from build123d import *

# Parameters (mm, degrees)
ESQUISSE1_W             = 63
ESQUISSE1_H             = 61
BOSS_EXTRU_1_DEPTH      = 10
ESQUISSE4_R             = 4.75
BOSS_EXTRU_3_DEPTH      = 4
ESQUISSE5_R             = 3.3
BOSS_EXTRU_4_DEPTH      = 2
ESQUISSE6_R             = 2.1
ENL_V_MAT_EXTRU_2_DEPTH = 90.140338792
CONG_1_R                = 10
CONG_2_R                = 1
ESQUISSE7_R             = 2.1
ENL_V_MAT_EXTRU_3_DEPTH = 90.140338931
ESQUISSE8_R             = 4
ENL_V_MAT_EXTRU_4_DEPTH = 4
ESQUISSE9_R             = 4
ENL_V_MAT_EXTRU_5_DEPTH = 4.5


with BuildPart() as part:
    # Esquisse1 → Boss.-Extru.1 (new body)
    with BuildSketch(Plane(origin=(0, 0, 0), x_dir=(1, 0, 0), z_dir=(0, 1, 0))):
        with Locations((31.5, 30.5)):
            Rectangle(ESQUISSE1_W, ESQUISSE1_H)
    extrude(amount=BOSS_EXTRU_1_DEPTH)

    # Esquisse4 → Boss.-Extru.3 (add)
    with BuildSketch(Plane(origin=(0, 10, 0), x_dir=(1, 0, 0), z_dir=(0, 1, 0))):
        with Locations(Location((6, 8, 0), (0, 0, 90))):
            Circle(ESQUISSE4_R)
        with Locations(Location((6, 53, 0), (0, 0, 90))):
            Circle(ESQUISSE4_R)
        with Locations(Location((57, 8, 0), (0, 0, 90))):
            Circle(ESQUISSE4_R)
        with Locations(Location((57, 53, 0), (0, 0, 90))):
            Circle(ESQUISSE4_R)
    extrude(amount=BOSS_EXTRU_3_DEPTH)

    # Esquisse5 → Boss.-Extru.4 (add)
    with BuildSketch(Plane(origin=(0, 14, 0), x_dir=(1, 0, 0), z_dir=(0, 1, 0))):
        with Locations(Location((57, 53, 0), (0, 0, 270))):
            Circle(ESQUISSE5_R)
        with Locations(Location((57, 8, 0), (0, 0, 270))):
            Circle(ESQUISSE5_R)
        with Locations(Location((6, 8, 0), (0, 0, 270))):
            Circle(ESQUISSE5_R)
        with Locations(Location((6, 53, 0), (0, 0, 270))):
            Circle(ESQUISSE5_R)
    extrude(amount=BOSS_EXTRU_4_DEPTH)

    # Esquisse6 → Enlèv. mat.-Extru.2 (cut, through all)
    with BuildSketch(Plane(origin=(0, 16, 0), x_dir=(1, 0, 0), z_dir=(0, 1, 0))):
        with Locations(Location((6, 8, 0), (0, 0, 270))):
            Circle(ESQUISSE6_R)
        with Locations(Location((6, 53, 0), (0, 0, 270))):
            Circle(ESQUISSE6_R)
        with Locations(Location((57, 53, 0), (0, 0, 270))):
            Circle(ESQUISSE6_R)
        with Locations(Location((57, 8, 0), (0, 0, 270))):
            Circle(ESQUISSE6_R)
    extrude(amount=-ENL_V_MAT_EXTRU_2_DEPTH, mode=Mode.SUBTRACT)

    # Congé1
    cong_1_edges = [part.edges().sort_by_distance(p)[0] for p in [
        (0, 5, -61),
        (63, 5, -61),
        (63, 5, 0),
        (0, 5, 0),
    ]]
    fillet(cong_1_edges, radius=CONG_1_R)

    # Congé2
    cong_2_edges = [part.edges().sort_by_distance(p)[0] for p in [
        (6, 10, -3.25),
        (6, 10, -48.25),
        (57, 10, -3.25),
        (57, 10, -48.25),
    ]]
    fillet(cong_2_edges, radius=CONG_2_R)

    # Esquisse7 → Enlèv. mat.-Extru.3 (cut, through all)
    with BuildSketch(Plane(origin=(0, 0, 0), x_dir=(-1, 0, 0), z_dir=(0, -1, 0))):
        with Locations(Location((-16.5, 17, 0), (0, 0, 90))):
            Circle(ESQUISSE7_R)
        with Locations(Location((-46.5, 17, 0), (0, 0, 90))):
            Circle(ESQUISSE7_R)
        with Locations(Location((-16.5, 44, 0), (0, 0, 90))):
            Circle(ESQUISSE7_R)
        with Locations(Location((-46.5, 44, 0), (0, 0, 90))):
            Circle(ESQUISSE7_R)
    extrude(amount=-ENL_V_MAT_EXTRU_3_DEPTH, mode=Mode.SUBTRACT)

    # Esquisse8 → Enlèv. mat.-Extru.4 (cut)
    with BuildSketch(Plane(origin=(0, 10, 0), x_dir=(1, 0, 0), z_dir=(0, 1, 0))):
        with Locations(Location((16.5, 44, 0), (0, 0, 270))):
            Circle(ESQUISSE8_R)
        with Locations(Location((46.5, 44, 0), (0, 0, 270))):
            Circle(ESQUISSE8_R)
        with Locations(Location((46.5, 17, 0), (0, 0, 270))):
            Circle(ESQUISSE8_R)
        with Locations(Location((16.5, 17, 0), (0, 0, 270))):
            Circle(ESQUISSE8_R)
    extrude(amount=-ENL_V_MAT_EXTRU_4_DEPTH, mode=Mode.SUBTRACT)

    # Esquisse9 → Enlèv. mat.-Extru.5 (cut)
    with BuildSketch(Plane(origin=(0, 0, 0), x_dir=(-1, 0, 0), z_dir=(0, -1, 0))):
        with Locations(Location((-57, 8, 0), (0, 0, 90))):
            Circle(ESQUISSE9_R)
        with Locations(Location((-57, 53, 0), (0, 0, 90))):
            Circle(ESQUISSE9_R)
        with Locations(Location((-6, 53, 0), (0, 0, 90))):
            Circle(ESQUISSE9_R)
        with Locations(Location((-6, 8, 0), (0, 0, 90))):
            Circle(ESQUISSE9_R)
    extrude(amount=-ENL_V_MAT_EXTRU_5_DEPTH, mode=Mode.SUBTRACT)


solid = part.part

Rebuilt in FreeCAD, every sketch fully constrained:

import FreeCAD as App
import Part
import Sketcher


def edges_at(feature, points):
    """Names of the edges that pass closest to the given points."""
    edges = feature.Shape.Edges
    near = lambda p: min(range(len(edges)), key=lambda i: edges[i].distToShape(Part.Vertex(*p))[0])
    return sorted({f"Edge{near(p) + 1}" for p in points})


def add_polygon(sketch, points):
    """Adds a closed chain of lines whose ends are joined by coincident constraints."""
    first, n = sketch.GeometryCount, len(points)
    for a, b in zip(points, points[1:] + points[:1]):
        sketch.addGeometry(Part.LineSegment(App.Vector(*a, 0), App.Vector(*b, 0)), False)
    for i in range(n):
        sketch.addConstraint(Sketcher.Constraint("Coincident", first + i, 2, first + (i + 1) % n, 1))

doc = App.newDocument("Part")
params = doc.addObject("Spreadsheet::Sheet", "Params")
for row, (alias, value) in enumerate([
    ("sketch1_width", "63 mm"),
    ("sketch1_height", "61 mm"),
    ("pad1_length", "10 mm"),
    ("sketch2_diameter", "9.5 mm"),
    ("pad2_length", "4 mm"),
    ("sketch3_diameter", "6.6 mm"),
    ("pad3_length", "2 mm"),
    ("sketch4_diameter", "4.2 mm"),
    ("fillet_radius", "10 mm"),
    ("fillet2_radius", "1 mm"),
    ("sketch5_diameter", "4.2 mm"),
    ("sketch6_diameter", "8 mm"),
    ("pocket3_length", "4 mm"),
    ("sketch7_diameter", "8 mm"),
    ("pocket4_length", "4.5 mm"),
], start=1):
    params.set(f"A{row}", alias)
    params.set(f"B{row}", "=" + value)
    params.setAlias(f"B{row}", alias)

body = doc.addObject("PartDesign::Body", "Body")

# Sketch on XZ plane
sketch1 = body.newObject("Sketcher::SketchObject", "Sketch")
sketch1.AttachmentSupport = (doc.getObject("XZ_Plane"), [""])
sketch1.MapMode = "FlatFace"
add_polygon(sketch1, [(0, -61), (0, 0), (63, 0), (63, -61)])  # lines 0-3
sketch1.addConstraint([
    Sketcher.Constraint("Vertical", 0),
    Sketcher.Constraint("Horizontal", 1),
    Sketcher.Constraint("Vertical", 2),
    Sketcher.Constraint("Horizontal", 3),
    Sketcher.Constraint("Coincident", 0, 2, -1, 1),
    Sketcher.Constraint("DistanceX", 1, 1, 1, 2, 63.0),
    Sketcher.Constraint("DistanceY", 0, 1, 0, 2, 61.0),
])
sketch1.setExpression("Constraints[9]", "Params.sketch1_width")
sketch1.setExpression("Constraints[10]", "Params.sketch1_height")
pad1 = body.newObject("PartDesign::Pad", "Pad")
pad1.Profile = sketch1
pad1.setExpression("Length", "Params.pad1_length")
pad1.Reversed = True

# Sketch on XZ plane
sketch2 = body.newObject("Sketcher::SketchObject", "Sketch001")
sketch2.AttachmentSupport = (doc.getObject("XZ_Plane"), [""])
sketch2.MapMode = "FlatFace"
sketch2.AttachmentOffset = App.Placement(App.Vector(0, 0, -10), App.Rotation())
sketch2.addGeometry([
    Part.Circle(App.Vector(6, -8, 0), App.Vector(0, 0, 1), 4.8),
    Part.Circle(App.Vector(6, -53, 0), App.Vector(0, 0, 1), 4.8),
    Part.Circle(App.Vector(57, -8, 0), App.Vector(0, 0, 1), 4.8),
    Part.Circle(App.Vector(57, -53, 0), App.Vector(0, 0, 1), 4.8),
], False)
sketch2.addConstraint([
    Sketcher.Constraint("Equal", 0, 1),
    Sketcher.Constraint("Equal", 1, 2),
    Sketcher.Constraint("Equal", 2, 3),
    Sketcher.Constraint("Horizontal", 0, 3, 2, 3),
    Sketcher.Constraint("Horizontal", 1, 3, 3, 3),
    Sketcher.Constraint("Vertical", 0, 3, 1, 3),
    Sketcher.Constraint("Vertical", 2, 3, 3, 3),
    Sketcher.Constraint("Diameter", 0, 9.5),
    Sketcher.Constraint("DistanceX", -1, 1, 0, 3, 6.0),
    Sketcher.Constraint("DistanceY", 0, 3, -1, 1, 8.0),
    Sketcher.Constraint("DistanceY", 1, 3, -1, 1, 53.0),
    Sketcher.Constraint("DistanceX", -1, 1, 2, 3, 57.0),
])
sketch2.setExpression("Constraints[7]", "Params.sketch2_diameter")
pad2 = body.newObject("PartDesign::Pad", "Pad001")
pad2.Profile = sketch2
pad2.setExpression("Length", "Params.pad2_length")
pad2.Reversed = True

# Sketch on XZ plane
sketch3 = body.newObject("Sketcher::SketchObject", "Sketch002")
sketch3.AttachmentSupport = (doc.getObject("XZ_Plane"), [""])
sketch3.MapMode = "FlatFace"
sketch3.AttachmentOffset = App.Placement(App.Vector(0, 0, -14), App.Rotation())
sketch3.addGeometry([
    Part.Circle(App.Vector(57, -53, 0), App.Vector(0, 0, 1), 3.3),
    Part.Circle(App.Vector(57, -8, 0), App.Vector(0, 0, 1), 3.3),
    Part.Circle(App.Vector(6, -8, 0), App.Vector(0, 0, 1), 3.3),
    Part.Circle(App.Vector(6, -53, 0), App.Vector(0, 0, 1), 3.3),
], False)
sketch3.addConstraint([
    Sketcher.Constraint("Equal", 0, 1),
    Sketcher.Constraint("Equal", 1, 2),
    Sketcher.Constraint("Equal", 2, 3),
    Sketcher.Constraint("Horizontal", 1, 3, 2, 3),
    Sketcher.Constraint("Horizontal", 0, 3, 3, 3),
    Sketcher.Constraint("Vertical", 0, 3, 1, 3),
    Sketcher.Constraint("Vertical", 2, 3, 3, 3),
    Sketcher.Constraint("Diameter", 0, 6.6),
    Sketcher.Constraint("DistanceX", -1, 1, 0, 3, 57.0),
    Sketcher.Constraint("DistanceY", 0, 3, -1, 1, 53.0),
    Sketcher.Constraint("DistanceY", 1, 3, -1, 1, 8.0),
    Sketcher.Constraint("DistanceX", -1, 1, 2, 3, 6.0),
])
sketch3.setExpression("Constraints[7]", "Params.sketch3_diameter")
pad3 = body.newObject("PartDesign::Pad", "Pad002")
pad3.Profile = sketch3
pad3.setExpression("Length", "Params.pad3_length")
pad3.Reversed = True

# Sketch on XZ plane
sketch4 = body.newObject("Sketcher::SketchObject", "Sketch003")
sketch4.AttachmentSupport = (doc.getObject("XZ_Plane"), [""])
sketch4.MapMode = "FlatFace"
sketch4.AttachmentOffset = App.Placement(App.Vector(0, 0, -16), App.Rotation())
sketch4.addGeometry([
    Part.Circle(App.Vector(6, -8, 0), App.Vector(0, 0, 1), 2.1),
    Part.Circle(App.Vector(6, -53, 0), App.Vector(0, 0, 1), 2.1),
    Part.Circle(App.Vector(57, -53, 0), App.Vector(0, 0, 1), 2.1),
    Part.Circle(App.Vector(57, -8, 0), App.Vector(0, 0, 1), 2.1),
], False)
sketch4.addConstraint([
    Sketcher.Constraint("Equal", 0, 1),
    Sketcher.Constraint("Equal", 1, 2),
    Sketcher.Constraint("Equal", 2, 3),
    Sketcher.Constraint("Horizontal", 1, 3, 2, 3),
    Sketcher.Constraint("Horizontal", 0, 3, 3, 3),
    Sketcher.Constraint("Vertical", 0, 3, 1, 3),
    Sketcher.Constraint("Vertical", 2, 3, 3, 3),
    Sketcher.Constraint("Diameter", 0, 4.2),
    Sketcher.Constraint("DistanceX", -1, 1, 0, 3, 6.0),
    Sketcher.Constraint("DistanceY", 0, 3, -1, 1, 8.0),
    Sketcher.Constraint("DistanceY", 1, 3, -1, 1, 53.0),
    Sketcher.Constraint("DistanceX", -1, 1, 2, 3, 57.0),
])
sketch4.setExpression("Constraints[7]", "Params.sketch4_diameter")
pocket1 = body.newObject("PartDesign::Pocket", "Pocket")
pocket1.Profile = sketch4
pocket1.Type = "ThroughAll"
pocket1.Reversed = True
doc.recompute()

fillet = body.newObject("PartDesign::Fillet", "Fillet")
fillet.Base = (pocket1, edges_at(pocket1, [
    (0, 5, -61),
    (63, 5, -61),
    (63, 5, 0),
    (0, 5, 0),
]))
fillet.setExpression("Radius", "Params.fillet_radius")
doc.recompute()

fillet2 = body.newObject("PartDesign::Fillet", "Fillet001")
fillet2.Base = (fillet, edges_at(fillet, [
    (6, 10, -3.25),
    (6, 10, -48.25),
    (57, 10, -3.25),
    (57, 10, -48.25),
]))
fillet2.setExpression("Radius", "Params.fillet2_radius")

# Sketch on XZ plane
sketch5 = body.newObject("Sketcher::SketchObject", "Sketch004")
sketch5.AttachmentSupport = (doc.getObject("XZ_Plane"), [""])
sketch5.MapMode = "FlatFace"
sketch5.addGeometry([
    Part.Circle(App.Vector(16.5, -17, 0), App.Vector(0, 0, 1), 2.1),
    Part.Circle(App.Vector(46.5, -17, 0), App.Vector(0, 0, 1), 2.1),
    Part.Circle(App.Vector(16.5, -44, 0), App.Vector(0, 0, 1), 2.1),
    Part.Circle(App.Vector(46.5, -44, 0), App.Vector(0, 0, 1), 2.1),
], False)
sketch5.addConstraint([
    Sketcher.Constraint("Equal", 0, 1),
    Sketcher.Constraint("Equal", 1, 2),
    Sketcher.Constraint("Equal", 2, 3),
    Sketcher.Constraint("Horizontal", 0, 3, 1, 3),
    Sketcher.Constraint("Horizontal", 2, 3, 3, 3),
    Sketcher.Constraint("Vertical", 0, 3, 2, 3),
    Sketcher.Constraint("Vertical", 1, 3, 3, 3),
    Sketcher.Constraint("Diameter", 0, 4.2),
    Sketcher.Constraint("DistanceY", 0, 3, -1, 1, 17.0),
    Sketcher.Constraint("DistanceY", 2, 3, -1, 1, 44.0),
    Sketcher.Constraint("DistanceX", 0, 3, 1, 3, 30.0),
    Sketcher.Constraint("DistanceX", -1, 1, 0, 3, 16.5),
])
sketch5.setExpression("Constraints[7]", "Params.sketch5_diameter")
pocket2 = body.newObject("PartDesign::Pocket", "Pocket001")
pocket2.Profile = sketch5
pocket2.Type = "ThroughAll"

# Sketch on XZ plane
sketch6 = body.newObject("Sketcher::SketchObject", "Sketch005")
sketch6.AttachmentSupport = (doc.getObject("XZ_Plane"), [""])
sketch6.MapMode = "FlatFace"
sketch6.AttachmentOffset = App.Placement(App.Vector(0, 0, -10), App.Rotation())
sketch6.addGeometry([
    Part.Circle(App.Vector(16.5, -44, 0), App.Vector(0, 0, 1), 4),
    Part.Circle(App.Vector(46.5, -44, 0), App.Vector(0, 0, 1), 4),
    Part.Circle(App.Vector(46.5, -17, 0), App.Vector(0, 0, 1), 4),
    Part.Circle(App.Vector(16.5, -17, 0), App.Vector(0, 0, 1), 4),
], False)
sketch6.addConstraint([
    Sketcher.Constraint("Equal", 0, 1),
    Sketcher.Constraint("Equal", 1, 2),
    Sketcher.Constraint("Equal", 2, 3),
    Sketcher.Constraint("Horizontal", 0, 3, 1, 3),
    Sketcher.Constraint("Horizontal", 2, 3, 3, 3),
    Sketcher.Constraint("Vertical", 1, 3, 2, 3),
    Sketcher.Constraint("Vertical", 0, 3, 3, 3),
    Sketcher.Constraint("Diameter", 0, 8.0),
    Sketcher.Constraint("DistanceY", 0, 3, -1, 1, 44.0),
    Sketcher.Constraint("DistanceY", 2, 3, -1, 1, 17.0),
    Sketcher.Constraint("DistanceX", 0, 3, 1, 3, 30.0),
    Sketcher.Constraint("DistanceX", -1, 1, 0, 3, 16.5),
])
sketch6.setExpression("Constraints[7]", "Params.sketch6_diameter")
pocket3 = body.newObject("PartDesign::Pocket", "Pocket002")
pocket3.Profile = sketch6
pocket3.setExpression("Length", "Params.pocket3_length")
pocket3.Reversed = True

# Sketch on XZ plane
sketch7 = body.newObject("Sketcher::SketchObject", "Sketch006")
sketch7.AttachmentSupport = (doc.getObject("XZ_Plane"), [""])
sketch7.MapMode = "FlatFace"
sketch7.addGeometry([
    Part.Circle(App.Vector(57, -8, 0), App.Vector(0, 0, 1), 4),
    Part.Circle(App.Vector(57, -53, 0), App.Vector(0, 0, 1), 4),
    Part.Circle(App.Vector(6, -53, 0), App.Vector(0, 0, 1), 4),
    Part.Circle(App.Vector(6, -8, 0), App.Vector(0, 0, 1), 4),
], False)
sketch7.addConstraint([
    Sketcher.Constraint("Equal", 0, 1),
    Sketcher.Constraint("Equal", 1, 2),
    Sketcher.Constraint("Equal", 2, 3),
    Sketcher.Constraint("Horizontal", 1, 3, 2, 3),
    Sketcher.Constraint("Horizontal", 0, 3, 3, 3),
    Sketcher.Constraint("Vertical", 0, 3, 1, 3),
    Sketcher.Constraint("Vertical", 2, 3, 3, 3),
    Sketcher.Constraint("Diameter", 0, 8.0),
    Sketcher.Constraint("DistanceX", -1, 1, 0, 3, 57.0),
    Sketcher.Constraint("DistanceY", 0, 3, -1, 1, 8.0),
    Sketcher.Constraint("DistanceY", 1, 3, -1, 1, 53.0),
    Sketcher.Constraint("DistanceX", -1, 1, 2, 3, 6.0),
])
sketch7.setExpression("Constraints[7]", "Params.sketch7_diameter")
pocket4 = body.newObject("PartDesign::Pocket", "Pocket003")
pocket4.Profile = sketch7
pocket4.setExpression("Length", "Params.pocket4_length")

doc.recompute()
